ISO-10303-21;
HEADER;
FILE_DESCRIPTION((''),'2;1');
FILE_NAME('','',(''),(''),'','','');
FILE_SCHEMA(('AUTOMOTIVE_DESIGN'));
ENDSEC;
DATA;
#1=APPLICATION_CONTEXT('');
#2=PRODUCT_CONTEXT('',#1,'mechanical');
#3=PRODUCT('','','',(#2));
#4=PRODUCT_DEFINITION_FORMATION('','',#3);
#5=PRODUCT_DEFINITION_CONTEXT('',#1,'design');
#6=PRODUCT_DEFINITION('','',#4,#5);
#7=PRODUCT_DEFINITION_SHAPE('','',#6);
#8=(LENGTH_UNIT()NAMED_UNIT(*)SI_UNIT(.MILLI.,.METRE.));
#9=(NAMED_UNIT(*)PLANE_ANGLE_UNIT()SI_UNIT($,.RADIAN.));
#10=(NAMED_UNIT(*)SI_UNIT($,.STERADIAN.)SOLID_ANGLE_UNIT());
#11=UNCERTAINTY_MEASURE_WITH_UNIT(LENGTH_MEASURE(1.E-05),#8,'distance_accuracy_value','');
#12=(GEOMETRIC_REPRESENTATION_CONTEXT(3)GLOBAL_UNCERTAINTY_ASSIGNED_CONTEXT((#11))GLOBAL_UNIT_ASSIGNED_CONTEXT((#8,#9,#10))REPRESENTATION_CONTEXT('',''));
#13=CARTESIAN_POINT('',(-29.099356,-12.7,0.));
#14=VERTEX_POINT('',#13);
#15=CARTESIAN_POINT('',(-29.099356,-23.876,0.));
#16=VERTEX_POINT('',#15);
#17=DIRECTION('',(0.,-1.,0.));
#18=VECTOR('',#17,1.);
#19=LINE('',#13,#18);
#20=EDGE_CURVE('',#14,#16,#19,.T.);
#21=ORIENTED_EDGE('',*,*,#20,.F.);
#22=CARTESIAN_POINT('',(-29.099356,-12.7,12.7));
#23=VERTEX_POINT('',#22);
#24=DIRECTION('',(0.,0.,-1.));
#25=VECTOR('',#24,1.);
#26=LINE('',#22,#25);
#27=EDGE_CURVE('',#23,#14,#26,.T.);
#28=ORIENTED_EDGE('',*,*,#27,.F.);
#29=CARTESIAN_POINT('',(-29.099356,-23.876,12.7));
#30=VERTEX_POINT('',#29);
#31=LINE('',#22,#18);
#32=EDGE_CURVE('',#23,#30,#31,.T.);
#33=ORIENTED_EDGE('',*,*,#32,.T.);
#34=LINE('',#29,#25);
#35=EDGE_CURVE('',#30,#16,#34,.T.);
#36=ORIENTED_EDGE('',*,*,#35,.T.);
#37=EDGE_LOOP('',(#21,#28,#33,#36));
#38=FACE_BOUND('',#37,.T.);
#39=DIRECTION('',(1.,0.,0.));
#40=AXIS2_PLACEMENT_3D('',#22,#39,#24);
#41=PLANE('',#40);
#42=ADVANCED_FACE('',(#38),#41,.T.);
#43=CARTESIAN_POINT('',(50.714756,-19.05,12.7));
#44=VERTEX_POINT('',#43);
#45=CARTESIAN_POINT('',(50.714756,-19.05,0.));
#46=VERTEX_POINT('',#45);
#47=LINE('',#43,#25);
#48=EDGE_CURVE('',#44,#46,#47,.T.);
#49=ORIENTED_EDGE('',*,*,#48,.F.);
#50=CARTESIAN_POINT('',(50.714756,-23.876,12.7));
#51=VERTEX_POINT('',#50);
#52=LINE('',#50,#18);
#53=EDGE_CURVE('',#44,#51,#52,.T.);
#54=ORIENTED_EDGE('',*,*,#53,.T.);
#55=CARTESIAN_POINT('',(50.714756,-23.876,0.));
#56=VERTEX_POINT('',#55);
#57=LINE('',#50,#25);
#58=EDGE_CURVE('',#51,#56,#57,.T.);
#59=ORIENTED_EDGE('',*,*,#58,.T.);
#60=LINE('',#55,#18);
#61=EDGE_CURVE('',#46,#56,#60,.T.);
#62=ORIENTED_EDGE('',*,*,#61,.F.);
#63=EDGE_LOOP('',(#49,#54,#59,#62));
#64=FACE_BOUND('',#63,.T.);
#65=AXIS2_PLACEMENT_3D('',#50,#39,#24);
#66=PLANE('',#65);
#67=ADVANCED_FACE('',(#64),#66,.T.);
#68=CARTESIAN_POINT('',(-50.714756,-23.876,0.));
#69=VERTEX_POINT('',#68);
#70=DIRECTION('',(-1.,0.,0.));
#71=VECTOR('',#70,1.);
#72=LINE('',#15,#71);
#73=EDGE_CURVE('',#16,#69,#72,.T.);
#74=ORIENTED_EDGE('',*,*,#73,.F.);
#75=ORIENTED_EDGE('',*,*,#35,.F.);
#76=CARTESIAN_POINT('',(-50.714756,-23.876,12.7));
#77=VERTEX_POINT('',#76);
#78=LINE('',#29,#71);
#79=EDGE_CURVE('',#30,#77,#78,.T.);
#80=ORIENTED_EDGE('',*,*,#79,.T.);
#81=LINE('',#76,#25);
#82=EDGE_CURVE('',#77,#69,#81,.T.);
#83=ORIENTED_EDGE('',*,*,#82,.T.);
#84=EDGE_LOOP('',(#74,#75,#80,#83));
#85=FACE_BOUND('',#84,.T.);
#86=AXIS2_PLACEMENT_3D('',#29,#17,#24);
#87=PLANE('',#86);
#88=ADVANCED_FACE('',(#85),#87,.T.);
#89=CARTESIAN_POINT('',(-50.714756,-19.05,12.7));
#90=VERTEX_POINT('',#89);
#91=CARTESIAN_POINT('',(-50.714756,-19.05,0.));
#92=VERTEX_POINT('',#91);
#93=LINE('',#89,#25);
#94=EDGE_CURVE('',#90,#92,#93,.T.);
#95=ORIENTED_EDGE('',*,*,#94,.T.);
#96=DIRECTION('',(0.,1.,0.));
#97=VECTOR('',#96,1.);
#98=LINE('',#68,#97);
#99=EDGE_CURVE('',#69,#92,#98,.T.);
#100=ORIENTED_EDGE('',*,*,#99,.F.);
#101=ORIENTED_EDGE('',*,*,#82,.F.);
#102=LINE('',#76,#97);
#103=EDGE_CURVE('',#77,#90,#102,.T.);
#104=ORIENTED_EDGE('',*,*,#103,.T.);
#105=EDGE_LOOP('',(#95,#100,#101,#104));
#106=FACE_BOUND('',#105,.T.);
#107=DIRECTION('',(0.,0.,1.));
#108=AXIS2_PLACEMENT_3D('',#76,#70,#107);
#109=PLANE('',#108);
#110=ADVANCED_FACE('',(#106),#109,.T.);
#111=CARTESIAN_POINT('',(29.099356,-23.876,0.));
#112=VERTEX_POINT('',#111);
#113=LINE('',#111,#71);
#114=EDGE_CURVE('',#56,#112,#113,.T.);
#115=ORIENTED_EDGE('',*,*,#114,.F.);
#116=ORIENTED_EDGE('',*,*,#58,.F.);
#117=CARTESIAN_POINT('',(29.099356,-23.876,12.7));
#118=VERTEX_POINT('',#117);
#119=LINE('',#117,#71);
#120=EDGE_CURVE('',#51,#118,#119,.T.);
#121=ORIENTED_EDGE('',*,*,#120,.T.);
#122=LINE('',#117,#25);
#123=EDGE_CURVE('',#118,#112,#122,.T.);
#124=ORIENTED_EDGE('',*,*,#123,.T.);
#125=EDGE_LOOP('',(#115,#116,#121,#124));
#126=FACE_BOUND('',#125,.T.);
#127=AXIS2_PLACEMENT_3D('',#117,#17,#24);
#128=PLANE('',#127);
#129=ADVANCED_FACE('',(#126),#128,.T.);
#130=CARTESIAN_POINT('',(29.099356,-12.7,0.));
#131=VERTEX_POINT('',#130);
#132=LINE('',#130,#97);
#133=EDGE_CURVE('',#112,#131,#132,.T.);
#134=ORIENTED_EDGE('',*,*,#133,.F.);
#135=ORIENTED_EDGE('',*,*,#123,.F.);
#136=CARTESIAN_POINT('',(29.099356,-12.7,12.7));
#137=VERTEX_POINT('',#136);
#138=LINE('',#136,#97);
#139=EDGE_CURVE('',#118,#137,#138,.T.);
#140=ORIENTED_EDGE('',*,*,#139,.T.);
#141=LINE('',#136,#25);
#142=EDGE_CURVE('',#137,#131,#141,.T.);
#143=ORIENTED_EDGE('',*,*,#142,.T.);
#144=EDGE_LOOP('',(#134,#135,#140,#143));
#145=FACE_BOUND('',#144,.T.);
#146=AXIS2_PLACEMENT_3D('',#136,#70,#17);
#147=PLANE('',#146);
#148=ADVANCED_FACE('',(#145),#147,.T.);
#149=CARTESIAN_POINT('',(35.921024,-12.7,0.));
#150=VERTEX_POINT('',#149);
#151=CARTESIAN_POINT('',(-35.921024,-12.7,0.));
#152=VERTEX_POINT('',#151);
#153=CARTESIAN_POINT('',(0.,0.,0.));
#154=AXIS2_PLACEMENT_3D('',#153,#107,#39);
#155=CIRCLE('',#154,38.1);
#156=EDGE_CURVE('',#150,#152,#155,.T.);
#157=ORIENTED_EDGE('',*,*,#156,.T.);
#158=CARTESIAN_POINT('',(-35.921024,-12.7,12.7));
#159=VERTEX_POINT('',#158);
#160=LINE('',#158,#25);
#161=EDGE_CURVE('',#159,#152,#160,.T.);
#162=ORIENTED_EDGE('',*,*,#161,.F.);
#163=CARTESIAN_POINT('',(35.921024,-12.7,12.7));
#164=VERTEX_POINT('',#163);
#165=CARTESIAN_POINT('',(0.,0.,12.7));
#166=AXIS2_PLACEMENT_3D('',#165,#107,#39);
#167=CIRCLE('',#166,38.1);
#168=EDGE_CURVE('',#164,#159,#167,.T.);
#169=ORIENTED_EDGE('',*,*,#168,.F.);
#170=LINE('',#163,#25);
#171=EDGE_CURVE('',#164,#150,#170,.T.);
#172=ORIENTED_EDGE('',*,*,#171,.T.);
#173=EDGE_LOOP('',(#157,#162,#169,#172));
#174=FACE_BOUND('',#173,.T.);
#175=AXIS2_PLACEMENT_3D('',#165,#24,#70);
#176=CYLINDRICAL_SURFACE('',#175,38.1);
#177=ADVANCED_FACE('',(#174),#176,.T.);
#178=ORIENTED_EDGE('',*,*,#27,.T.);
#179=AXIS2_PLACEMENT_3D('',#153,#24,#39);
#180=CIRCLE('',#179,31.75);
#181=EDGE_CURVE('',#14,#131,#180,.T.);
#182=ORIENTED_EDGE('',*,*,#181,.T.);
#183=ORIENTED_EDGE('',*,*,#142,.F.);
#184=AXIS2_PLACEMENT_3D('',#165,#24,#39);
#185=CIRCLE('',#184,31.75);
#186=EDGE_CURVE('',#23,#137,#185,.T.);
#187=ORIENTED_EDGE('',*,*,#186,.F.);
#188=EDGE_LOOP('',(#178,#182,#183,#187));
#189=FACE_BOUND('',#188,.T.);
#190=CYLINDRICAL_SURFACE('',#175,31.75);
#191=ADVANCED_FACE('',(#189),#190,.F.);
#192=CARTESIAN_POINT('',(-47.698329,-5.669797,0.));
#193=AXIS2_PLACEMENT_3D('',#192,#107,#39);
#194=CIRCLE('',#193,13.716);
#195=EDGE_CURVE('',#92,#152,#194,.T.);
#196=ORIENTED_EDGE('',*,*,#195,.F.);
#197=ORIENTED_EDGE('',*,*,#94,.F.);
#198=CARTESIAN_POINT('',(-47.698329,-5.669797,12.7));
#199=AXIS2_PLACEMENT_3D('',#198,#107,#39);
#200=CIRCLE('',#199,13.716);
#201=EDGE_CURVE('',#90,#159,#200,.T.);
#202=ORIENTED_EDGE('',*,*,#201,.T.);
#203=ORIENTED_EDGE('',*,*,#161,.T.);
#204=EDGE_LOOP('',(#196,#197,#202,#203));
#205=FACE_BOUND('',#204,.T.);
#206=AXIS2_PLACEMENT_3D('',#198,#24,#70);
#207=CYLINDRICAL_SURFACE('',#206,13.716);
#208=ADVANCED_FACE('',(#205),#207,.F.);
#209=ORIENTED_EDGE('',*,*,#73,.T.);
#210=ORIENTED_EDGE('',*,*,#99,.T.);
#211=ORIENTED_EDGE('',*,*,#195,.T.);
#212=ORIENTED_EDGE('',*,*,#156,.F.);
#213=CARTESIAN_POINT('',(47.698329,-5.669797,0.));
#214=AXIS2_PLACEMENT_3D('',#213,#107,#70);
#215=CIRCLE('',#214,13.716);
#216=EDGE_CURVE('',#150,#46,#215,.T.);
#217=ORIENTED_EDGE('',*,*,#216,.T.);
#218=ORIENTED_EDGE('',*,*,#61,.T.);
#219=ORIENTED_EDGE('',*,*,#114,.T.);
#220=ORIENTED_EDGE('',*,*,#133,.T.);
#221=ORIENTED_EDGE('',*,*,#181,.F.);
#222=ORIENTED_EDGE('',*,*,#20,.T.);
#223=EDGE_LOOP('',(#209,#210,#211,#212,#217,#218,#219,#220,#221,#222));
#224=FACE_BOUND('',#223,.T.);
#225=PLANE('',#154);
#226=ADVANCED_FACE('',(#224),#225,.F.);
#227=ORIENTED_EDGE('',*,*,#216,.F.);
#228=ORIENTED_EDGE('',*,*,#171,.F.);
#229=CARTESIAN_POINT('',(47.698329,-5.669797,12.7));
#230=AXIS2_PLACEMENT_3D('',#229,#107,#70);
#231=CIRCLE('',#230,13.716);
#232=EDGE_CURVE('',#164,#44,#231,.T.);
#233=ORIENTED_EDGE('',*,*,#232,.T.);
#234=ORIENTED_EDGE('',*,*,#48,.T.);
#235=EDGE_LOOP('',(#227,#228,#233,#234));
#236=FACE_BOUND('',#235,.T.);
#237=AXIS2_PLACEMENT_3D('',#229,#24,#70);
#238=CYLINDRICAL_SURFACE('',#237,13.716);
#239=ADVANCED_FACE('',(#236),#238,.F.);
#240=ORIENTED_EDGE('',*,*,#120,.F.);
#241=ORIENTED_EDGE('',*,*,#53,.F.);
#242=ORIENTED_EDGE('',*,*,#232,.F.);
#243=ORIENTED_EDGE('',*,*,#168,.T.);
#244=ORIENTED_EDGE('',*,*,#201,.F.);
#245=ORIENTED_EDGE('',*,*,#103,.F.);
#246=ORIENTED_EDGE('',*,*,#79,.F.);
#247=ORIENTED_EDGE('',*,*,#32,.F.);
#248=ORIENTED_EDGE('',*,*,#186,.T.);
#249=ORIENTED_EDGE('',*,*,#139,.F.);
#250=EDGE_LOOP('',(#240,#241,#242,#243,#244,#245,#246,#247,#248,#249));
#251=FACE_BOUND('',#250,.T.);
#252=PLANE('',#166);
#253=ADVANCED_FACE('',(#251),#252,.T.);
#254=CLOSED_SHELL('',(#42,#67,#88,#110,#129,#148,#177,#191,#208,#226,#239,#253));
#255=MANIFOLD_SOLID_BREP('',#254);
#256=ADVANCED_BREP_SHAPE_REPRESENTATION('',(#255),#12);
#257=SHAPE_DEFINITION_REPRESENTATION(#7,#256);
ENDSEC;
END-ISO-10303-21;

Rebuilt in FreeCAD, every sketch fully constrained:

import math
import FreeCAD as App
import Part
import Sketcher

V = App.Vector
Q = App.Units.Quantity

doc = App.newDocument("Part")
body = doc.addObject("PartDesign::Body", "Body")

sketch1 = body.newObject("Sketcher::SketchObject", "Sketch")
sketch1.AttachmentSupport = (doc.getObject("XY_Plane"), [""])
sketch1.MapMode = "FlatFace"
sketch1.addGeometry([
    Part.LineSegment(V(-36, -13, 0), V(-29, -13, 0)),
    Part.ArcOfCircle(Part.Circle(V(0, 0, 0), V(0, 0, 1), 32), math.radians(-24), math.radians(204)),
    Part.LineSegment(V(29, -13, 0), V(36, -13, 0)),
    Part.ArcOfCircle(Part.Circle(V(0, 0, 0), V(0, 0, 1), 38), math.radians(-19), math.radians(199)),
], False)
sketch1.addConstraint([
    Sketcher.Constraint("Coincident", 0, 2, 1, 2),
    Sketcher.Constraint("Coincident", 1, 1, 2, 1),
    Sketcher.Constraint("Coincident", 2, 2, 3, 1),
    Sketcher.Constraint("Coincident", 3, 2, 0, 1),
    Sketcher.Constraint("Horizontal", 0),
    Sketcher.Constraint("Horizontal", 2),
    Sketcher.Constraint("Coincident", 1, 3, -1, 1),
    Sketcher.Constraint("Coincident", 3, 3, -1, 1),
    Sketcher.Constraint("Horizontal", 0, 2, 1, 1),
    Sketcher.Constraint("Radius", 3, Q("1.5 in")),
    Sketcher.Constraint("Radius", 1, Q("1.25 in")),
    Sketcher.Constraint("DistanceY", 0, 2, -1, 1, Q("0.5 in")),
])
pad1 = body.newObject("PartDesign::Pad", "Pad")
pad1.Profile = sketch1
pad1.Length = Q("0.5 in")

sketch2 = body.newObject("Sketcher::SketchObject", "Sketch001")
sketch2.AttachmentSupport = (doc.getObject("XY_Plane"), [""])
sketch2.MapMode = "FlatFace"
sketch2.addGeometry([
    Part.LineSegment(V(29.1, -23.9, 0), V(29.1, -12.7, 0)),
    Part.LineSegment(V(29.1, -12.7, 0), V(35.9, -12.7, 0)),
    Part.ArcOfCircle(Part.Circle(V(47.7, -5.7, 0), V(0, 0, 1), 13.7), math.radians(-149), math.radians(-77)),
    Part.LineSegment(V(50.7, -19.1, 0), V(50.7, -23.9, 0)),
    Part.LineSegment(V(50.7, -23.9, 0), V(29.1, -23.9, 0)),
    Part.LineSegment(V(-29.1, -12.7, 0), V(-29.1, -23.9, 0)),
    Part.LineSegment(V(-29.1, -23.9, 0), V(-50.7, -23.9, 0)),
    Part.LineSegment(V(-50.7, -23.9, 0), V(-50.7, -19.1, 0)),
    Part.ArcOfCircle(Part.Circle(V(-47.7, -5.7, 0), V(0, 0, 1), 13.7), math.radians(-103), math.radians(-31)),
    Part.LineSegment(V(-35.9, -12.7, 0), V(-29.1, -12.7, 0)),
], False)
sketch2.addConstraint([
    Sketcher.Constraint("Coincident", 0, 2, 1, 1),
    Sketcher.Constraint("Coincident", 1, 2, 2, 1),
    Sketcher.Constraint("Coincident", 2, 2, 3, 1),
    Sketcher.Constraint("Coincident", 3, 2, 4, 1),
    Sketcher.Constraint("Coincident", 4, 2, 0, 1),
    Sketcher.Constraint("Coincident", 5, 2, 6, 1),
    Sketcher.Constraint("Coincident", 6, 2, 7, 1),
    Sketcher.Constraint("Coincident", 7, 2, 8, 1),
    Sketcher.Constraint("Coincident", 8, 2, 9, 1),
    Sketcher.Constraint("Coincident", 9, 2, 5, 1),
    Sketcher.Constraint("Vertical", 0),
    Sketcher.Constraint("Horizontal", 1),
    Sketcher.Constraint("Vertical", 3),
    Sketcher.Constraint("Horizontal", 4),
    Sketcher.Constraint("Vertical", 5),
    Sketcher.Constraint("Horizontal", 6),
    Sketcher.Constraint("Vertical", 7),
    Sketcher.Constraint("Horizontal", 9),
    Sketcher.Constraint("Equal", 2, 8),
    Sketcher.Constraint("Symmetric", 2, 3, 8, 3, -2),
    Sketcher.Constraint("Symmetric", 4, 2, 5, 2, -2),
    Sketcher.Constraint("Horizontal", 2, 2, 7, 2),
    Sketcher.Constraint("Horizontal", 1, 2, 8, 2),
    Sketcher.Constraint("Radius", 2, Q("0.54 in")),
    Sketcher.Constraint("DistanceY", 0, 1, 0, 2, Q("0.44 in")),
    Sketcher.Constraint("DistanceY", 3, 2, 3, 1, Q("0.19 in")),
    Sketcher.Constraint("DistanceY", 0, 2, -1, 1, Q("0.5 in")),
    Sketcher.Constraint("DistanceX", 4, 2, 4, 1, Q("0.851 in")),
    Sketcher.Constraint("DistanceX", 1, 1, 1, 2, Q("6.821669 mm")),
    Sketcher.Constraint("DistanceX", -1, 1, 2, 3, Q("47.698329 mm")),
])
pad2 = body.newObject("PartDesign::Pad", "Pad001")
pad2.Profile = sketch2
pad2.Length = Q("0.5 in")

doc.recompute()
